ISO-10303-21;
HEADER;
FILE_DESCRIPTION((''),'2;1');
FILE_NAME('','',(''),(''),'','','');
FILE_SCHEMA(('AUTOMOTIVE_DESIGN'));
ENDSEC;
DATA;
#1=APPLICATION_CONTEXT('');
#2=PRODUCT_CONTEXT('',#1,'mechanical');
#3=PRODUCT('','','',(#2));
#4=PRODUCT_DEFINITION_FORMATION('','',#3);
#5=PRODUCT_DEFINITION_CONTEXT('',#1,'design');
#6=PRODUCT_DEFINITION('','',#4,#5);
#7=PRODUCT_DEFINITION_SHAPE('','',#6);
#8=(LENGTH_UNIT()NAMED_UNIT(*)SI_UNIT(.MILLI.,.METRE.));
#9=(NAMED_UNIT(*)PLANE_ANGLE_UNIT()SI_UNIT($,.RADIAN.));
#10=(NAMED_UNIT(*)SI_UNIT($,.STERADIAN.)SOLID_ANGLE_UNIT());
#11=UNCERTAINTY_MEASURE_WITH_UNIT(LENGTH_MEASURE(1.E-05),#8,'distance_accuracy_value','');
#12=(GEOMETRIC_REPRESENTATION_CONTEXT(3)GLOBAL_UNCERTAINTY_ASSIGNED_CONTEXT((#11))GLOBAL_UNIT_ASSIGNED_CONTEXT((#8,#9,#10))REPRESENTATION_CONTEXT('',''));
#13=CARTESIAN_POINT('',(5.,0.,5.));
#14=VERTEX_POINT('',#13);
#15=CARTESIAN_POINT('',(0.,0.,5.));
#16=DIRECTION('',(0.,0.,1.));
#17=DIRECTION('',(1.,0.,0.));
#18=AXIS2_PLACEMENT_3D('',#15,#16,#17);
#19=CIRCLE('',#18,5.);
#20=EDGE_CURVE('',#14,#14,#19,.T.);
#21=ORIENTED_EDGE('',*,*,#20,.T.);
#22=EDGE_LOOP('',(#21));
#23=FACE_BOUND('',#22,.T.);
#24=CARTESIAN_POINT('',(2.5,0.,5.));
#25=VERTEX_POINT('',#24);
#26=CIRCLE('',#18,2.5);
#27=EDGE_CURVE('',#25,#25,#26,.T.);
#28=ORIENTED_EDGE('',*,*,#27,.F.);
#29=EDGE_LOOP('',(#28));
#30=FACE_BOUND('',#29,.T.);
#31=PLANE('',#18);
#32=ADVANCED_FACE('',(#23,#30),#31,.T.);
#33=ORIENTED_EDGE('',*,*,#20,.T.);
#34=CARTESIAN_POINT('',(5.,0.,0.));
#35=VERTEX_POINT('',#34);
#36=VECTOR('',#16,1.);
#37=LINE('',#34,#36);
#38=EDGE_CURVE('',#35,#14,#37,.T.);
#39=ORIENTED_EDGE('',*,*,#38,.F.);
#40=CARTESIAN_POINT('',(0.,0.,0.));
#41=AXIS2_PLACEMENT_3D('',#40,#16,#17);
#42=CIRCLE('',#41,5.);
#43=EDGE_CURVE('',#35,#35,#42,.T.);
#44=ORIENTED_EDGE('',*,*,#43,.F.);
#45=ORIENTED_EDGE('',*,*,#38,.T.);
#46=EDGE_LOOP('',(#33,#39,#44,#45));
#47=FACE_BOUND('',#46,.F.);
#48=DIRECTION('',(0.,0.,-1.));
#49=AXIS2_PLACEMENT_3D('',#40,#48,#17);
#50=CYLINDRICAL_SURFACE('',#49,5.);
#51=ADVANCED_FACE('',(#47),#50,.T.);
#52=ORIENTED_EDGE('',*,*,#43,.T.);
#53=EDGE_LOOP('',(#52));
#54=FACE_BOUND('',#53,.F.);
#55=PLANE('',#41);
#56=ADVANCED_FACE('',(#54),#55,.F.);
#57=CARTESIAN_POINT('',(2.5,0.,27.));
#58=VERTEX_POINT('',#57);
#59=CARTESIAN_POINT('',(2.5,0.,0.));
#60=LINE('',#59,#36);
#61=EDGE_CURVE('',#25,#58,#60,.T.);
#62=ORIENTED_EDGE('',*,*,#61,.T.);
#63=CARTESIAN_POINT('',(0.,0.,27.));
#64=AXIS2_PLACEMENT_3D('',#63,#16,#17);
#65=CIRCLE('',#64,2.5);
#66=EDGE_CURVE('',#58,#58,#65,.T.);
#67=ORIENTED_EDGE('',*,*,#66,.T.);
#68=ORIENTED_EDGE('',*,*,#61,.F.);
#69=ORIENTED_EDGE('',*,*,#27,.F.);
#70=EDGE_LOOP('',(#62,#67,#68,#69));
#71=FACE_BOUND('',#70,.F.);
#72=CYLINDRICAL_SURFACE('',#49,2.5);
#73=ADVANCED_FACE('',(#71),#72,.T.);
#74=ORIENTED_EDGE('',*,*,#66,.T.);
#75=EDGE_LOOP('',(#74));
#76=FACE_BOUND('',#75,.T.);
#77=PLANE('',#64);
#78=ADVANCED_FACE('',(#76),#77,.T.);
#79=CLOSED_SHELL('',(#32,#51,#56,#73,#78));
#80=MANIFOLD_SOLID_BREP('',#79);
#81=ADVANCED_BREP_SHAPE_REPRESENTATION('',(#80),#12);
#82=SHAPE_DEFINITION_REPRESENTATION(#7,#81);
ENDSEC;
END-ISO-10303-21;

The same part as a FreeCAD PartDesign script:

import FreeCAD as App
import Part
import Sketcher
from FreeCAD import Vector
Q = App.Units.Quantity

doc = App.newDocument("Part")
body = doc.addObject("PartDesign::Body", "Body")

# Sketch on XY plane
sketch1 = doc.addObject("Sketcher::SketchObject", "Sketch")
body.addObject(sketch1)
sketch1.AttachmentSupport = (doc.XY_Plane, [""])
sketch1.MapMode = "FlatFace"
sketch1.addGeometry(Part.Circle(Vector(0, 0, 0), Vector(0, 0, 1), 2.5), False)
sketch1.addConstraint(Sketcher.Constraint("Coincident", 0, 3, -1, 1))
sketch1.addConstraint(Sketcher.Constraint("Diameter", 0, Q("5 mm")))
pad1 = doc.addObject("PartDesign::Pad", "Pad")
body.addObject(pad1)
pad1.Profile = sketch1
pad1.Length = 27

# Sketch on XY plane
sketch2 = doc.addObject("Sketcher::SketchObject", "Sketch001")
body.addObject(sketch2)
sketch2.AttachmentSupport = (doc.XY_Plane, [""])
sketch2.MapMode = "FlatFace"
sketch2.addGeometry(Part.Circle(Vector(0, 0, 0), Vector(0, 0, 1), 5), False)
sketch2.addGeometry(Part.Circle(Vector(0, 0, 0), Vector(0, 0, 1), 2.5), False)
sketch2.addConstraint(Sketcher.Constraint("Coincident", 0, 3, -1, 1))
sketch2.addConstraint(Sketcher.Constraint("Coincident", 1, 3, -1, 1))
sketch2.addConstraint(Sketcher.Constraint("Diameter", 0, Q("10 mm")))
sketch2.addConstraint(Sketcher.Constraint("Diameter", 1, Q("5 mm")))
pad2 = doc.addObject("PartDesign::Pad", "Pad001")
body.addObject(pad2)
pad2.Profile = sketch2
pad2.Length = 5

doc.recompute()
